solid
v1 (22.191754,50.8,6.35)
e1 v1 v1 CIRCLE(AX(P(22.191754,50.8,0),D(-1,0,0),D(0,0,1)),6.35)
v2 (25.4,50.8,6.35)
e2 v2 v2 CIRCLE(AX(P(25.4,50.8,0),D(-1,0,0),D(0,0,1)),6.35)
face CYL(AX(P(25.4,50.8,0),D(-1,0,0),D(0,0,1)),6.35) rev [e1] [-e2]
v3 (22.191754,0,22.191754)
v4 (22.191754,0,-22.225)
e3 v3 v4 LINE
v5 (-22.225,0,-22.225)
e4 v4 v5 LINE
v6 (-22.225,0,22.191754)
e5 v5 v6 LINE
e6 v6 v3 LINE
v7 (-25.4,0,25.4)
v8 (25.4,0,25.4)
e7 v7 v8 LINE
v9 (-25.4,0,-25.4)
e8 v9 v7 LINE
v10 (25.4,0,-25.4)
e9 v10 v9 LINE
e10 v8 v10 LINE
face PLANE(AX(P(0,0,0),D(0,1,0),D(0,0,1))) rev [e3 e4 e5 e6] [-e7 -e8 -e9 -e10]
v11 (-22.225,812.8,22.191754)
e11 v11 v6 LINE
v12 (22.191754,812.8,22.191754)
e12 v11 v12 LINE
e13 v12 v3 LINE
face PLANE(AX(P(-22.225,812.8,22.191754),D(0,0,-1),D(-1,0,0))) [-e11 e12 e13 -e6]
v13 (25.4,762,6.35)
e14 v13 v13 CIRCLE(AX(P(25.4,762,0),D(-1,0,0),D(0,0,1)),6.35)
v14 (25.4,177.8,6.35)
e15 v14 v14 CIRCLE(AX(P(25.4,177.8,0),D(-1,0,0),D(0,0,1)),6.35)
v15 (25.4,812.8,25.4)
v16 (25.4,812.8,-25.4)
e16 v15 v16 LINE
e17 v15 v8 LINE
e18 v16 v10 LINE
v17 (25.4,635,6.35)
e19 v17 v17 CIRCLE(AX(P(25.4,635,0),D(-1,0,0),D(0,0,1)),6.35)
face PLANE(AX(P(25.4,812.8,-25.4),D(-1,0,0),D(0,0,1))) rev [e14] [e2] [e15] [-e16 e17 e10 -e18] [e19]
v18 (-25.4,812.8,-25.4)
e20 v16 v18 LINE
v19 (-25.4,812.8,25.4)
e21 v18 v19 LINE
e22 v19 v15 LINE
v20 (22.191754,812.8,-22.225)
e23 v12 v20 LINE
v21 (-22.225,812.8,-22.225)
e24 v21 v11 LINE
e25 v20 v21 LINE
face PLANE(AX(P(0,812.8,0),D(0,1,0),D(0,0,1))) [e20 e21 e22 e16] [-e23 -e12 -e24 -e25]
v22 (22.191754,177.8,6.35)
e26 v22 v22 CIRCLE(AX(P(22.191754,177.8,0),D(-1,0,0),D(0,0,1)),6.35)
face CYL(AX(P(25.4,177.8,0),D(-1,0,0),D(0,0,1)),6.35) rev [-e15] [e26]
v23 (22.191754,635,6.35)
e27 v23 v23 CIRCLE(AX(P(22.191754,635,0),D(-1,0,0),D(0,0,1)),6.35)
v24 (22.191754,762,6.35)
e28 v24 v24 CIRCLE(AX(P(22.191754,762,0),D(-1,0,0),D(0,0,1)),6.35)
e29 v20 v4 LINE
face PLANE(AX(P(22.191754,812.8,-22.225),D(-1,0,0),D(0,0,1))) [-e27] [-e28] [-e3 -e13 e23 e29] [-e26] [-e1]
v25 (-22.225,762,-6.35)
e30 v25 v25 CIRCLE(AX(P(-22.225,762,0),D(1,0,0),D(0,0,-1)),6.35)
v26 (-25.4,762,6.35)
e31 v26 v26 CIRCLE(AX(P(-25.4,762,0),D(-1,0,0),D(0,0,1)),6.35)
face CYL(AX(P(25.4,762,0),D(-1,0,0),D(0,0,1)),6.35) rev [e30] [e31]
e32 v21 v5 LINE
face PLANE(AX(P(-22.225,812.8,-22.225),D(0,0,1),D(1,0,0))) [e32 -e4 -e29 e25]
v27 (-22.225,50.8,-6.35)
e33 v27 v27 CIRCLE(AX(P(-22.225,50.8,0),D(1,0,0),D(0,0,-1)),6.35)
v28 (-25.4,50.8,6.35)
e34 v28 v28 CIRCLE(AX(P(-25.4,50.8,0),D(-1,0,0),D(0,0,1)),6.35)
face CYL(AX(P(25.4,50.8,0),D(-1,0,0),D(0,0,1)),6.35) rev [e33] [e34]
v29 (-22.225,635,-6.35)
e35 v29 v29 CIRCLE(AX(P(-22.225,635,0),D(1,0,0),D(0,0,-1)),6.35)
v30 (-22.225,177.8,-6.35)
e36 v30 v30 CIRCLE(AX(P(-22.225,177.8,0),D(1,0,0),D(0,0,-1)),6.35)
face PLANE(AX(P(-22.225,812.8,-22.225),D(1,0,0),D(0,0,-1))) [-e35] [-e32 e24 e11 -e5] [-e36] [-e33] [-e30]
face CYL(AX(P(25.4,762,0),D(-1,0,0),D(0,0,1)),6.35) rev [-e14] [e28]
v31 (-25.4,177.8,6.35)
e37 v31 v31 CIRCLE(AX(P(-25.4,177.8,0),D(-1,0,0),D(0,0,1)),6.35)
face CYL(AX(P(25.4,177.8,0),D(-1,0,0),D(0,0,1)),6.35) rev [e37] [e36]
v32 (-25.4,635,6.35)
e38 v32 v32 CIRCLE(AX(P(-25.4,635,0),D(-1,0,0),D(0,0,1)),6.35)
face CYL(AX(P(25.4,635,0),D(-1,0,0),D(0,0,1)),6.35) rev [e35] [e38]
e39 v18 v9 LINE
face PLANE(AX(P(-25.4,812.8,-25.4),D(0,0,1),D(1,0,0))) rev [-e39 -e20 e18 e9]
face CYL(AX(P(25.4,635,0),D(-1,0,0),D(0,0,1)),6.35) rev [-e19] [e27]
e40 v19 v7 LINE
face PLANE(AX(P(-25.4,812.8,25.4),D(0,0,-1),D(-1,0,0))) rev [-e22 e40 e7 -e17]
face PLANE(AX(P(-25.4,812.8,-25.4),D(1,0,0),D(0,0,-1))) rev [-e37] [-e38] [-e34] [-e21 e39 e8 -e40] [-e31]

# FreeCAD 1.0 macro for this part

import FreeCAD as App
import Part
import Sketcher

V = App.Vector
Q = App.Units.Quantity


def add_polygon(sketch, points):
    """Adds a closed chain of lines whose ends are joined by coincident constraints."""
    first, n = sketch.GeometryCount, len(points)
    for a, b in zip(points, points[1:] + points[:1]):
        sketch.addGeometry(Part.LineSegment(App.Vector(*a, 0), App.Vector(*b, 0)), False)
    for i in range(n):
        sketch.addConstraint(Sketcher.Constraint("Coincident", first + i, 2, first + (i + 1) % n, 1))

doc = App.newDocument("Part")
body = doc.addObject("PartDesign::Body", "Body")

# Sketch on XZ plane
sketch1 = body.newObject("Sketcher::SketchObject", "Sketch")
sketch1.AttachmentSupport = (doc.getObject("XZ_Plane"), [""])
sketch1.MapMode = "FlatFace"
add_polygon(sketch1, [(-25, -25), (-25, 25), (25, 25), (25, -25)])  # lines 0-3
add_polygon(sketch1, [(22, 22), (-22, 22), (-22, -22), (22, -22)])  # lines 4-7
sketch1.addConstraint(Sketcher.Constraint("Vertical", 0))
sketch1.addConstraint(Sketcher.Constraint("Horizontal", 1))
sketch1.addConstraint(Sketcher.Constraint("Vertical", 2))
sketch1.addConstraint(Sketcher.Constraint("Horizontal", 3))
sketch1.addConstraint(Sketcher.Constraint("Horizontal", 4))
sketch1.addConstraint(Sketcher.Constraint("Vertical", 5))
sketch1.addConstraint(Sketcher.Constraint("Horizontal", 6))
sketch1.addConstraint(Sketcher.Constraint("Vertical", 7))
sketch1.addConstraint(Sketcher.Constraint("Symmetric", 0, 2, 2, 2, -1, 1))
sketch1.addConstraint(Sketcher.Constraint("Equal", 3, 0))
sketch1.addConstraint(Sketcher.Constraint("Equal", 6, 5))
sketch1.addConstraint(Sketcher.Constraint("DistanceX", 1, 1, 1, 2, Q("2 in")))
sketch1.addConstraint(Sketcher.Constraint("DistanceX", 4, 2, -1, 1, Q("0.875 in")))
sketch1.addConstraint(Sketcher.Constraint("DistanceY", 5, 2, -1, 1, Q("0.875 in")))
sketch1.addConstraint(Sketcher.Constraint("DistanceX", 4, 2, 4, 1, 44.416754))
pad1 = body.newObject("PartDesign::Pad", "Pad")
pad1.Profile = sketch1
pad1.Length = Q("32 in")
pad1.Reversed = True

# Sketch on YZ plane
sketch2 = body.newObject("Sketcher::SketchObject", "Sketch001")
sketch2.AttachmentSupport = (doc.getObject("YZ_Plane"), [""])
sketch2.MapMode = "FlatFace"
sketch2.AttachmentOffset = App.Placement(V(0, 0, -1 * 25.4), App.Rotation())
sketch2.addGeometry(Part.Circle(V(51, 0, 0), V(0, 0, 1), 6), False)
sketch2.addGeometry(Part.Circle(V(178, 0, 0), V(0, 0, 1), 6), False)
sketch2.addGeometry(Part.Circle(V(635, 0, 0), V(0, 0, 1), 6), False)
sketch2.addGeometry(Part.Circle(V(762, 0, 0), V(0, 0, 1), 6), False)
sketch2.addConstraint(Sketcher.Constraint("Equal", 0, 1))
sketch2.addConstraint(Sketcher.Constraint("Equal", 1, 2))
sketch2.addConstraint(Sketcher.Constraint("Equal", 2, 3))
sketch2.addConstraint(Sketcher.Constraint("PointOnObject", 0, 3, -1))
sketch2.addConstraint(Sketcher.Constraint("PointOnObject", 1, 3, -1))
sketch2.addConstraint(Sketcher.Constraint("PointOnObject", 2, 3, -1))
sketch2.addConstraint(Sketcher.Constraint("PointOnObject", 3, 3, -1))
sketch2.addConstraint(Sketcher.Constraint("Diameter", 0, Q("0.5 in")))
sketch2.addConstraint(Sketcher.Constraint("DistanceX", -1, 1, 0, 3, Q("2 in")))
sketch2.addConstraint(Sketcher.Constraint("DistanceX", -1, 1, 1, 3, Q("7 in")))
sketch2.addConstraint(Sketcher.Constraint("DistanceX", -1, 1, 2, 3, Q("25 in")))
sketch2.addConstraint(Sketcher.Constraint("DistanceX", -1, 1, 3, 3, Q("30 in")))
pocket1 = body.newObject("PartDesign::Pocket", "Pocket")
pocket1.Profile = sketch2
pocket1.Type = "ThroughAll"
pocket1.Reversed = True

doc.recompute()
